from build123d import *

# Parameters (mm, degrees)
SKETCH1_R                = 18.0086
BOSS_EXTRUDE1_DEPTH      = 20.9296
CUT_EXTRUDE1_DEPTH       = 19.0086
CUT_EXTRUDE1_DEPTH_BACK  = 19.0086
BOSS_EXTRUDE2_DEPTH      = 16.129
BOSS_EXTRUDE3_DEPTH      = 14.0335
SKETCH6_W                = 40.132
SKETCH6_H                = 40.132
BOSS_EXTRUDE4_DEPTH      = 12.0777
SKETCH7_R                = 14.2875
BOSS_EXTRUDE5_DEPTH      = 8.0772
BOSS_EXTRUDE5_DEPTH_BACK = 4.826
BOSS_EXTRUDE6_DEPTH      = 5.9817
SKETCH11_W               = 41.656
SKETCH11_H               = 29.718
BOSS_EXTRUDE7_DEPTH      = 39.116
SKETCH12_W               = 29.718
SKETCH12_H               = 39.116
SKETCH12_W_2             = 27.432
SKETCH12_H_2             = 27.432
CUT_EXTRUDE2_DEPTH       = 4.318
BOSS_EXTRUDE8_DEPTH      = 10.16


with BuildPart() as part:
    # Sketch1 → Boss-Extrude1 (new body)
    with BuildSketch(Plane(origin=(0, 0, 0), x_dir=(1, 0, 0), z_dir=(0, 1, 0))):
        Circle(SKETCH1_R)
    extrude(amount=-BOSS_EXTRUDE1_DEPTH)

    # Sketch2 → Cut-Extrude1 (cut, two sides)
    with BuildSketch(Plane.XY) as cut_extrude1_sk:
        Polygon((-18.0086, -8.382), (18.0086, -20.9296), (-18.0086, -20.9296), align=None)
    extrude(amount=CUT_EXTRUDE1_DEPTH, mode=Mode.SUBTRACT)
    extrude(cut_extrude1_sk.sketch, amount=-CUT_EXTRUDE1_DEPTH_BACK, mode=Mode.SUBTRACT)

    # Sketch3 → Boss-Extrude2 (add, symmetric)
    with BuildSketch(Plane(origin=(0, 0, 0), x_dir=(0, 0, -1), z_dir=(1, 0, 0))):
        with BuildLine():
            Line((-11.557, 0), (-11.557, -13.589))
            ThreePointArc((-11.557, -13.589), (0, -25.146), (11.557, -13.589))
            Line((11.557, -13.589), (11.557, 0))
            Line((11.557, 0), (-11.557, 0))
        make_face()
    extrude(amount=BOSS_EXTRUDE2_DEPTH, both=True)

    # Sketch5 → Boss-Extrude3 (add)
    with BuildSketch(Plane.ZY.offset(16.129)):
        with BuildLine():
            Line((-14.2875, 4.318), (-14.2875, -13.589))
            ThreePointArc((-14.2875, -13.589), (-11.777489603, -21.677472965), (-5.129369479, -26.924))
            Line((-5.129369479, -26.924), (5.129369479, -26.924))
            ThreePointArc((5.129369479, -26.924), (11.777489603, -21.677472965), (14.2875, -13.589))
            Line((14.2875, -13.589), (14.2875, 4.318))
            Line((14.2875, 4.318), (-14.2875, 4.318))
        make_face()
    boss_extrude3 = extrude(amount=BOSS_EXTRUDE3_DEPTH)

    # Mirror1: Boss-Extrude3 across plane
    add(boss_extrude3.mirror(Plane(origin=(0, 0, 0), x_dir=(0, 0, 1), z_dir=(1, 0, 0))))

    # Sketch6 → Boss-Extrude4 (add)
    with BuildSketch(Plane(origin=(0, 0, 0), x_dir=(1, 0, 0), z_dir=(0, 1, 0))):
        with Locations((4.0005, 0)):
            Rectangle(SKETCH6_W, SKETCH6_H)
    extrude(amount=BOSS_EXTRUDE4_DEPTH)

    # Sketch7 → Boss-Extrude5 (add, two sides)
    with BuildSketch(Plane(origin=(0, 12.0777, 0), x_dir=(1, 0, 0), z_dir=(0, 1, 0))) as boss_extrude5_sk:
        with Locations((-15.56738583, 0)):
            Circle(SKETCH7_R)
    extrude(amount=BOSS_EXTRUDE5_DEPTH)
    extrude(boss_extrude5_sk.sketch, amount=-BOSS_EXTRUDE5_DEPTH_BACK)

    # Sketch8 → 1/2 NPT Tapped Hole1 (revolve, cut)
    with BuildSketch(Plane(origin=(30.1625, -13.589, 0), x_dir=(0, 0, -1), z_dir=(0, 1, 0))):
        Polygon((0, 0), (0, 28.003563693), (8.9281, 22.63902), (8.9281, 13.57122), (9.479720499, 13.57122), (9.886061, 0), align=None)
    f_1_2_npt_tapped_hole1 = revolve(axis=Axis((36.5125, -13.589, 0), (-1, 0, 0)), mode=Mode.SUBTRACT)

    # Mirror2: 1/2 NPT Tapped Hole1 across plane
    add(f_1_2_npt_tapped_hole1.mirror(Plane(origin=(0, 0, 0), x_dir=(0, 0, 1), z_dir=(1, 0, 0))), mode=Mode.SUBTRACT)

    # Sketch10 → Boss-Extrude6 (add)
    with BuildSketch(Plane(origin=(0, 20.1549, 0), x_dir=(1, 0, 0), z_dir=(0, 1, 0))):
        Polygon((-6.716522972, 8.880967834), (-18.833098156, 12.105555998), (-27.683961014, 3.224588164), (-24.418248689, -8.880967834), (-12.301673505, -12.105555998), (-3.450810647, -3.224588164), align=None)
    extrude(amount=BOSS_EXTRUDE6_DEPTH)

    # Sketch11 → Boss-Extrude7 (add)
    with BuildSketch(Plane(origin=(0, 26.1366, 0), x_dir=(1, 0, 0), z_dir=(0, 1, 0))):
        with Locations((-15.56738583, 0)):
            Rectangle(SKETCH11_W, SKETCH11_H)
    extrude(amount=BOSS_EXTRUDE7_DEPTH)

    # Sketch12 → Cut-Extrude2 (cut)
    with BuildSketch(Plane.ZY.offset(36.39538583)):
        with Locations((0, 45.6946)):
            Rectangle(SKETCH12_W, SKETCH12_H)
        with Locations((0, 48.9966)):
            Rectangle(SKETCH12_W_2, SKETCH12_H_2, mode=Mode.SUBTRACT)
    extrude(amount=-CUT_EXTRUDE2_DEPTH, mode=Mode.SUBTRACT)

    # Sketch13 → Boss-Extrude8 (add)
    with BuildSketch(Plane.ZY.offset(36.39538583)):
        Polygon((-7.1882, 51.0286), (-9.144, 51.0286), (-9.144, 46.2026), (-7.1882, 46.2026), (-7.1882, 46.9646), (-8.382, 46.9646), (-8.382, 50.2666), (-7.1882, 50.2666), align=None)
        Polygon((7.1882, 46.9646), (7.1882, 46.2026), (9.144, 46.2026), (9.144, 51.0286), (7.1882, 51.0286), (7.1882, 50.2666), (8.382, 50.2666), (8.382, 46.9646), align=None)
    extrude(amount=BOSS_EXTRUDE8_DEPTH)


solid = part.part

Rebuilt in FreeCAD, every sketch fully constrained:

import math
import FreeCAD as App
import Part
import Sketcher

V = App.Vector
Q = App.Units.Quantity

doc = App.newDocument("Part")
body = doc.addObject("PartDesign::Body", "Body")

sketch1 = doc.addObject("Sketcher::SketchObject", "Sketch")
body.addObject(sketch1)
sketch1.AttachmentSupport = (doc.XZ_Plane, [""])
sketch1.MapMode = "FlatFace"
sketch1.addGeometry(Part.Circle(V(0, 0, 0), V(0, 0, 1), 18), False)
sketch1.addConstraint([
    Sketcher.Constraint("Coincident", 0, 3, -1, 1),
    Sketcher.Constraint("Diameter", 0, Q("1.418 in")),
])
pad1 = doc.addObject("PartDesign::Pad", "Pad")
body.addObject(pad1)
pad1.Profile = sketch1
pad1.Length = Q("0.824 in")

sketch2 = doc.addObject("Sketcher::SketchObject", "Sketch001")
body.addObject(sketch2)
sketch2.AttachmentSupport = (doc.XY_Plane, [""])
sketch2.MapMode = "FlatFace"
sketch2.addGeometry([
    Part.LineSegment(V(18, -21, 0), V(-18, -8, 0)),
    Part.LineSegment(V(-18, -8, 0), V(-18, -21, 0)),
    Part.LineSegment(V(-18, -21, 0), V(18, -21, 0)),
], False)
sketch2.addConstraint([
    Sketcher.Constraint("Coincident", 0, 2, 1, 1),
    Sketcher.Constraint("Coincident", 1, 2, 2, 1),
    Sketcher.Constraint("Coincident", 2, 2, 0, 1),
    Sketcher.Constraint("Vertical", 1),
    Sketcher.Constraint("Horizontal", 2),
    Sketcher.Constraint("DistanceX", 2, 1, 2, 2, Q("1.418 in")),
    Sketcher.Constraint("DistanceY", 1, 2, 1, 1, Q("0.494 in")),
    Sketcher.Constraint("DistanceY", 0, 2, -1, 1, Q("0.33 in")),
    Sketcher.Constraint("DistanceX", 0, 2, -1, 1, Q("0.709 in")),
])
pocket1 = doc.addObject("PartDesign::Pocket", "Pocket")
body.addObject(pocket1)
pocket1.Profile = sketch2
pocket1.Type = "ThroughAll"
pocket1.Midplane = True

sketch3 = doc.addObject("Sketcher::SketchObject", "Sketch002")
body.addObject(sketch3)
sketch3.AttachmentSupport = (doc.YZ_Plane, [""])
sketch3.MapMode = "FlatFace"
sketch3.addGeometry([
    Part.LineSegment(V(0, 12, 0), V(-14, 12, 0)),
    Part.ArcOfCircle(Part.Circle(V(-14, 0, 0), V(0, 0, 1), 12), math.radians(90), math.radians(270)),
    Part.LineSegment(V(-14, -12, 0), V(0, -12, 0)),
    Part.LineSegment(V(0, -12, 0), V(0, 12, 0)),
], False)
sketch3.addConstraint([
    Sketcher.Constraint("Tangent", 0, 2, 1, 1),
    Sketcher.Constraint("Tangent", 1, 2, 2, 1),
    Sketcher.Constraint("Coincident", 2, 2, 3, 1),
    Sketcher.Constraint("Coincident", 3, 2, 0, 1),
    Sketcher.Constraint("Horizontal", 0),
    Sketcher.Constraint("Horizontal", 2),
    Sketcher.Constraint("Vertical", 3),
    Sketcher.Constraint("Symmetric", 2, 2, 3, 2, -1, 1),
    Sketcher.Constraint("Radius", 1, Q("0.455 in")),
    Sketcher.Constraint("DistanceX", 0, 2, 0, 1, Q("0.535 in")),
])
pad2 = doc.addObject("PartDesign::Pad", "Pad001")
body.addObject(pad2)
pad2.Profile = sketch3
pad2.Length = Q("1.27 in")
pad2.Midplane = True

sketch4 = doc.addObject("Sketcher::SketchObject", "Sketch003")
body.addObject(sketch4)
sketch4.AttachmentSupport = (doc.YZ_Plane, [""])
sketch4.MapMode = "FlatFace"
sketch4.AttachmentOffset = App.Placement(V(0, 0, -0.635 * 25.4), App.Rotation())
sketch4.addGeometry([
    Part.LineSegment(V(4, -14, 0), V(-14, -14, 0)),
    Part.ArcOfCircle(Part.Circle(V(-14, 0, 0), V(0, 0, 1), 14), math.radians(-159), math.radians(-90)),
    Part.LineSegment(V(-27, -5, 0), V(-27, 5, 0)),
    Part.ArcOfCircle(Part.Circle(V(-14, 0, 0), V(0, 0, 1), 14), math.radians(90), math.radians(159)),
    Part.LineSegment(V(-14, 14, 0), V(4, 14, 0)),
    Part.LineSegment(V(4, 14, 0), V(4, -14, 0)),
], False)
sketch4.addConstraint([
    Sketcher.Constraint("Tangent", 0, 2, 1, 2),
    Sketcher.Constraint("Coincident", 1, 1, 2, 1),
    Sketcher.Constraint("Coincident", 2, 2, 3, 2),
    Sketcher.Constraint("Tangent", 3, 1, 4, 1),
    Sketcher.Constraint("Coincident", 4, 2, 5, 1),
    Sketcher.Constraint("Coincident", 5, 2, 0, 1),
    Sketcher.Constraint("Horizontal", 0),
    Sketcher.Constraint("Vertical", 2),
    Sketcher.Constraint("Horizontal", 4),
    Sketcher.Constraint("Vertical", 5),
    Sketcher.Constraint("Coincident", 3, 3, 1, 3),
    Sketcher.Constraint("Equal", 1, 3),
    Sketcher.Constraint("PointOnObject", 1, 3, -1),
    Sketcher.Constraint("Radius", 1, Q("0.5625 in")),
    Sketcher.Constraint("DistanceX", 0, 2, 0, 1, Q("0.705 in")),
    Sketcher.Constraint("DistanceX", 1, 1, -1, 1, Q("1.06 in")),
    Sketcher.Constraint("DistanceX", -1, 1, 4, 2, Q("0.17 in")),
])
pad3 = doc.addObject("PartDesign::Pad", "Pad002")
body.addObject(pad3)
pad3.Profile = sketch4
pad3.Length = Q("0.5525 in")
pad3.Reversed = True
doc.recompute()

mirrored = doc.addObject("PartDesign::Mirrored", "Mirrored")
body.addObject(mirrored)
mirrored.Originals = [pad3]
mirrored.MirrorPlane = (doc.YZ_Plane, [""])
body.Tip = mirrored

sketch5 = doc.addObject("Sketcher::SketchObject", "Sketch004")
body.addObject(sketch5)
sketch5.AttachmentSupport = (doc.XZ_Plane, [""])
sketch5.MapMode = "FlatFace"
sketch5.addGeometry([
    Part.LineSegment(V(-16, -20, 0), V(-16, 20, 0)),
    Part.LineSegment(V(-16, 20, 0), V(24, 20, 0)),
    Part.LineSegment(V(24, 20, 0), V(24, -20, 0)),
    Part.LineSegment(V(24, -20, 0), V(-16, -20, 0)),
], False)
sketch5.addConstraint([
    Sketcher.Constraint("Coincident", 0, 2, 1, 1),
    Sketcher.Constraint("Coincident", 1, 2, 2, 1),
    Sketcher.Constraint("Coincident", 2, 2, 3, 1),
    Sketcher.Constraint("Coincident", 3, 2, 0, 1),
    Sketcher.Constraint("Vertical", 0),
    Sketcher.Constraint("Horizontal", 1),
    Sketcher.Constraint("Vertical", 2),
    Sketcher.Constraint("Horizontal", 3),
    Sketcher.Constraint("Equal", 3, 0),
    Sketcher.Constraint("DistanceX", 1, 1, 1, 2, Q("1.58 in")),
    Sketcher.Constraint("DistanceY", -1, 1, 0, 2, Q("0.79 in")),
    Sketcher.Constraint("DistanceX", 0, 2, -1, 1, Q("0.6325 in")),
])
pad4 = doc.addObject("PartDesign::Pad", "Pad003")
body.addObject(pad4)
pad4.Profile = sketch5
pad4.Length = Q("0.4755 in")
pad4.Reversed = True

sketch6 = doc.addObject("Sketcher::SketchObject", "Sketch005")
body.addObject(sketch6)
sketch6.AttachmentSupport = (doc.XZ_Plane, [""])
sketch6.MapMode = "FlatFace"
sketch6.AttachmentOffset = App.Placement(V(0, 0, -0.4755 * 25.4), App.Rotation())
sketch6.addGeometry(Part.Circle(V(-16, 0, 0), V(0, 0, 1), 14), False)
sketch6.addConstraint([
    Sketcher.Constraint("PointOnObject", 0, 3, -1),
    Sketcher.Constraint("Diameter", 0, Q("1.125 in")),
    Sketcher.Constraint("DistanceX", 0, 3, -1, 1, 15.567386),
])
pad5 = doc.addObject("PartDesign::Pad", "Pad004")
body.addObject(pad5)
pad5.Profile = sketch6
pad5.Type = "TwoLengths"
pad5.Length = Q("0.318 in")
pad5.Length2 = Q("0.19 in")
pad5.Reversed = True

sketch7 = doc.addObject("Sketcher::SketchObject", "Sketch006")
body.addObject(sketch7)
sketch7.AttachmentSupport = (doc.XZ_Plane, [""])
sketch7.MapMode = "FlatFace"
sketch7.AttachmentOffset = App.Placement(V(0, 0, 0.535 * 25.4), App.Rotation())
sketch7.addGeometry([
    Part.LineSegment(V(2.2, 0, 0), V(30.2, 0, 0)),
    Part.LineSegment(V(30.2, 0, 0), V(30.2, -9.9, 0)),
    Part.LineSegment(V(30.2, -9.9, 0), V(16.6, -9.5, 0)),
    Part.LineSegment(V(16.6, -9.5, 0), V(16.6, -8.9, 0)),
    Part.LineSegment(V(16.6, -8.9, 0), V(7.5, -8.9, 0)),
    Part.LineSegment(V(7.5, -8.9, 0), V(2.2, 0, 0)),
], False)
sketch7.addConstraint([
    Sketcher.Constraint("Coincident", 0, 2, 1, 1),
    Sketcher.Constraint("Coincident", 1, 2, 2, 1),
    Sketcher.Constraint("Coincident", 2, 2, 3, 1),
    Sketcher.Constraint("Coincident", 3, 2, 4, 1),
    Sketcher.Constraint("Coincident", 4, 2, 5, 1),
    Sketcher.Constraint("Coincident", 5, 2, 0, 1),
    Sketcher.Constraint("Horizontal", 0),
    Sketcher.Constraint("Vertical", 1),
    Sketcher.Constraint("Vertical", 3),
    Sketcher.Constraint("Horizontal", 4),
    Sketcher.Constraint("PointOnObject", 0, 2, -1),
    Sketcher.Constraint("Angle", 5, Q("121 deg")),
    Sketcher.Constraint("DistanceX", 4, 2, 4, 1, Q("0.357 in")),
    Sketcher.Constraint("DistanceX", -1, 1, 0, 2, Q("1.1875 in")),
    Sketcher.Constraint("DistanceX", -1, 1, 2, 2, Q("0.6532 in")),
    Sketcher.Constraint("DistanceY", 3, 2, -1, 1, Q("0.3515 in")),
    Sketcher.Constraint("Distance", 2, 13.577302),
    Sketcher.Constraint("DistanceY", 1, 2, 1, 1, 9.886061),
])
groove = doc.addObject("PartDesign::Groove", "Groove")
body.addObject(groove)
groove.Profile = sketch7
groove.ReferenceAxis = (sketch7, ["H_Axis"])
groove.Angle = 360
doc.recompute()

mirrored2 = doc.addObject("PartDesign::Mirrored", "Mirrored001")
body.addObject(mirrored2)
mirrored2.Originals = [groove]
mirrored2.MirrorPlane = (doc.YZ_Plane, [""])
body.Tip = mirrored2

sketch8 = doc.addObject("Sketcher::SketchObject", "Sketch007")
body.addObject(sketch8)
sketch8.AttachmentSupport = (doc.XZ_Plane, [""])
sketch8.MapMode = "FlatFace"
sketch8.AttachmentOffset = App.Placement(V(0, 0, -0.7935 * 25.4), App.Rotation())
sketch8.addGeometry([
    Part.LineSegment(V(-7, -9, 0), V(-19, -12, 0)),
    Part.LineSegment(V(-19, -12, 0), V(-28, -3, 0)),
    Part.LineSegment(V(-28, -3, 0), V(-24, 9, 0)),
    Part.LineSegment(V(-24, 9, 0), V(-12, 12, 0)),
    Part.LineSegment(V(-12, 12, 0), V(-3, 3, 0)),
    Part.LineSegment(V(-3, 3, 0), V(-7, -9, 0)),
], False)
sketch8.addConstraint([
    Sketcher.Constraint("Coincident", 0, 2, 1, 1),
    Sketcher.Constraint("Coincident", 1, 2, 2, 1),
    Sketcher.Constraint("Coincident", 2, 2, 3, 1),
    Sketcher.Constraint("Coincident", 3, 2, 4, 1),
    Sketcher.Constraint("Coincident", 4, 2, 5, 1),
    Sketcher.Constraint("Coincident", 5, 2, 0, 1),
    Sketcher.Constraint("Parallel", 0, 3),
    Sketcher.Constraint("Parallel", 1, 4),
    Sketcher.Constraint("Parallel", 2, 5),
    Sketcher.Constraint("Equal", 0, 1),
    Sketcher.Constraint("Equal", 1, 2),
    Sketcher.Constraint("Equal", 2, 3),
    Sketcher.Constraint("DistanceX", 0, 2, -1, 1, 18.833098),
    Sketcher.Constraint("DistanceX", 1, 2, -1, 1, 27.683961),
    Sketcher.Constraint("DistanceY", 1, 2, -1, 1, 3.224588),
    Sketcher.Constraint("DistanceX", 2, 2, -1, 1, 24.418249),
    Sketcher.Constraint("DistanceX", 4, 2, -1, 1, 3.450811),
    Sketcher.Constraint("DistanceY", -1, 1, 4, 2, 3.224588),
])
pad6 = doc.addObject("PartDesign::Pad", "Pad005")
body.addObject(pad6)
pad6.Profile = sketch8
pad6.Length = Q("0.2355 in")
pad6.Reversed = True

sketch9 = doc.addObject("Sketcher::SketchObject", "Sketch008")
body.addObject(sketch9)
sketch9.AttachmentSupport = (doc.XZ_Plane, [""])
sketch9.MapMode = "FlatFace"
sketch9.AttachmentOffset = App.Placement(V(0, 0, -1.029 * 25.4), App.Rotation())
sketch9.addGeometry([
    Part.LineSegment(V(-36, -15, 0), V(-36, 15, 0)),
    Part.LineSegment(V(-36, 15, 0), V(5, 15, 0)),
    Part.LineSegment(V(5, 15, 0), V(5, -15, 0)),
    Part.LineSegment(V(5, -15, 0), V(-36, -15, 0)),
], False)
sketch9.addConstraint([
    Sketcher.Constraint("Coincident", 0, 2, 1, 1),
    Sketcher.Constraint("Coincident", 1, 2, 2, 1),
    Sketcher.Constraint("Coincident", 2, 2, 3, 1),
    Sketcher.Constraint("Coincident", 3, 2, 0, 1),
    Sketcher.Constraint("Vertical", 0),
    Sketcher.Constraint("Horizontal", 1),
    Sketcher.Constraint("Vertical", 2),
    Sketcher.Constraint("Horizontal", 3),
    Sketcher.Constraint("DistanceX", 1, 1, 1, 2, Q("1.64 in")),
    Sketcher.Constraint("DistanceY", 0, 1, 0, 2, Q("1.17 in")),
    Sketcher.Constraint("DistanceY", -1, 1, 0, 2, Q("0.585 in")),
    Sketcher.Constraint("DistanceX", 0, 2, -1, 1, 36.395386),
])
pad7 = doc.addObject("PartDesign::Pad", "Pad006")
body.addObject(pad7)
pad7.Profile = sketch9
pad7.Length = Q("1.54 in")
pad7.Reversed = True

sketch10 = doc.addObject("Sketcher::SketchObject", "Sketch009")
body.addObject(sketch10)
sketch10.AttachmentSupport = (doc.YZ_Plane, [""])
sketch10.MapMode = "FlatFace"
sketch10.AttachmentOffset = App.Placement(V(0, 0, -36.395386), App.Rotation())
sketch10.addGeometry([
    Part.LineSegment(V(65, -15, 0), V(26, -15, 0)),
    Part.LineSegment(V(26, -15, 0), V(26, 15, 0)),
    Part.LineSegment(V(26, 15, 0), V(65, 15, 0)),
    Part.LineSegment(V(65, 15, 0), V(65, -15, 0)),
    Part.LineSegment(V(35, 14, 0), V(35, -14, 0)),
    Part.LineSegment(V(35, -14, 0), V(63, -14, 0)),
    Part.LineSegment(V(63, -14, 0), V(63, 14, 0)),
    Part.LineSegment(V(63, 14, 0), V(35, 14, 0)),
], False)
sketch10.addConstraint([
    Sketcher.Constraint("Coincident", 0, 2, 1, 1),
    Sketcher.Constraint("Coincident", 1, 2, 2, 1),
    Sketcher.Constraint("Coincident", 2, 2, 3, 1),
    Sketcher.Constraint("Coincident", 3, 2, 0, 1),
    Sketcher.Constraint("Coincident", 4, 2, 5, 1),
    Sketcher.Constraint("Coincident", 5, 2, 6, 1),
    Sketcher.Constraint("Coincident", 6, 2, 7, 1),
    Sketcher.Constraint("Coincident", 7, 2, 4, 1),
    Sketcher.Constraint("Horizontal", 0),
    Sketcher.Constraint("Vertical", 1),
    Sketcher.Constraint("Horizontal", 2),
    Sketcher.Constraint("Vertical", 3),
    Sketcher.Constraint("Vertical", 4),
    Sketcher.Constraint("Horizontal", 5),
    Sketcher.Constraint("Vertical", 6),
    Sketcher.Constraint("Horizontal", 7),
    Sketcher.Constraint("Equal", 7, 4),
    Sketcher.Constraint("DistanceX", 0, 2, 0, 1, Q("1.54 in")),
    Sketcher.Constraint("DistanceX", 5, 1, 5, 2, Q("1.08 in")),
    Sketcher.Constraint("DistanceY", 1, 1, 1, 2, Q("1.17 in")),
    Sketcher.Constraint("DistanceX", 5, 2, 3, 2, Q("0.1 in")),
    Sketcher.Constraint("DistanceY", 4, 2, -1, 1, Q("0.54 in")),
    Sketcher.Constraint("DistanceX", -1, 1, 0, 2, Q("1.029 in")),
    Sketcher.Constraint("DistanceY", 0, 2, -1, 1, Q("0.585 in")),
])
pocket2 = doc.addObject("PartDesign::Pocket", "Pocket001")
body.addObject(pocket2)
pocket2.Profile = sketch10
pocket2.Length = Q("0.17 in")
pocket2.Reversed = True

sketch11 = doc.addObject("Sketcher::SketchObject", "Sketch010")
body.addObject(sketch11)
sketch11.AttachmentSupport = (doc.YZ_Plane, [""])
sketch11.MapMode = "FlatFace"
sketch11.AttachmentOffset = App.Placement(V(0, 0, -36.395386), App.Rotation())
sketch11.addGeometry([
    Part.LineSegment(V(51, -7.2, 0), V(51, -9.1, 0)),
    Part.LineSegment(V(51, -9.1, 0), V(46.2, -9.1, 0)),
    Part.LineSegment(V(46.2, -9.1, 0), V(46.2, -7.2, 0)),
    Part.LineSegment(V(46.2, -7.2, 0), V(47, -7.2, 0)),
    Part.LineSegment(V(47, -7.2, 0), V(47, -8.4, 0)),
    Part.LineSegment(V(47, -8.4, 0), V(50.3, -8.4, 0)),
    Part.LineSegment(V(50.3, -8.4, 0), V(50.3, -7.2, 0)),
    Part.LineSegment(V(50.3, -7.2, 0), V(51, -7.2, 0)),
    Part.LineSegment(V(47, 7.2, 0), V(46.2, 7.2, 0)),
    Part.LineSegment(V(46.2, 7.2, 0), V(46.2, 9.1, 0)),
    Part.LineSegment(V(46.2, 9.1, 0), V(51, 9.1, 0)),
    Part.LineSegment(V(51, 9.1, 0), V(51, 7.2, 0)),
    Part.LineSegment(V(51, 7.2, 0), V(50.3, 7.2, 0)),
    Part.LineSegment(V(50.3, 7.2, 0), V(50.3, 8.4, 0)),
    Part.LineSegment(V(50.3, 8.4, 0), V(47, 8.4, 0)),
    Part.LineSegment(V(47, 8.4, 0), V(47, 7.2, 0)),
], False)
sketch11.addConstraint([
    Sketcher.Constraint("Coincident", 0, 2, 1, 1),
    Sketcher.Constraint("Coincident", 1, 2, 2, 1),
    Sketcher.Constraint("Coincident", 2, 2, 3, 1),
    Sketcher.Constraint("Coincident", 3, 2, 4, 1),
    Sketcher.Constraint("Coincident", 4, 2, 5, 1),
    Sketcher.Constraint("Coincident", 5, 2, 6, 1),
    Sketcher.Constraint("Coincident", 6, 2, 7, 1),
    Sketcher.Constraint("Coincident", 7, 2, 0, 1),
    Sketcher.Constraint("Coincident", 8, 2, 9, 1),
    Sketcher.Constraint("Coincident", 9, 2, 10, 1),
    Sketcher.Constraint("Coincident", 10, 2, 11, 1),
    Sketcher.Constraint("Coincident", 11, 2, 12, 1),
    Sketcher.Constraint("Coincident", 12, 2, 13, 1),
    Sketcher.Constraint("Coincident", 13, 2, 14, 1),
    Sketcher.Constraint("Coincident", 14, 2, 15, 1),
    Sketcher.Constraint("Coincident", 15, 2, 8, 1),
    Sketcher.Constraint("Vertical", 0),
    Sketcher.Constraint("Horizontal", 1),
    Sketcher.Constraint("Vertical", 2),
    Sketcher.Constraint("Horizontal", 3),
    Sketcher.Constraint("Vertical", 4),
    Sketcher.Constraint("Horizontal", 5),
    Sketcher.Constraint("Vertical", 6),
    Sketcher.Constraint("Horizontal", 7),
    Sketcher.Constraint("Horizontal", 8),
    Sketcher.Constraint("Vertical", 9),
    Sketcher.Constraint("Horizontal", 10),
    Sketcher.Constraint("Vertical", 11),
    Sketcher.Constraint("Horizontal", 12),
    Sketcher.Constraint("Vertical", 13),
    Sketcher.Constraint("Horizontal", 14),
    Sketcher.Constraint("Vertical", 15),
    Sketcher.Constraint("Symmetric", 2, 2, 8, 2, -1),
    Sketcher.Constraint("Symmetric", 0, 2, 10, 2, -1),
    Sketcher.Constraint("Symmetric", 6, 2, 12, 2, -1),
    Sketcher.Constraint("Symmetric", 4, 2, 14, 2, -1),
    Sketcher.Constraint("Horizontal", 3, 2, 6, 2),
    Sketcher.Constraint("Equal", 3, 7),
    Sketcher.Constraint("DistanceX", 1, 2, 1, 1, Q("0.19 in")),
    Sketcher.Constraint("DistanceX", 3, 1, 3, 2, Q("0.03 in")),
    Sketcher.Constraint("DistanceY", 0, 2, 0, 1, Q("0.077 in")),
    Sketcher.Constraint("DistanceY", 4, 2, 4, 1, Q("0.047 in")),
    Sketcher.Constraint("DistanceY", 0, 2, -1, 1, Q("0.36 in")),
    Sketcher.Constraint("DistanceX", -1, 1, 0, 2, Q("2.009 in")),
])
pad8 = doc.addObject("PartDesign::Pad", "Pad007")
body.addObject(pad8)
pad8.Profile = sketch11
pad8.Length = Q("0.4 in")
pad8.Reversed = True

doc.recompute()
